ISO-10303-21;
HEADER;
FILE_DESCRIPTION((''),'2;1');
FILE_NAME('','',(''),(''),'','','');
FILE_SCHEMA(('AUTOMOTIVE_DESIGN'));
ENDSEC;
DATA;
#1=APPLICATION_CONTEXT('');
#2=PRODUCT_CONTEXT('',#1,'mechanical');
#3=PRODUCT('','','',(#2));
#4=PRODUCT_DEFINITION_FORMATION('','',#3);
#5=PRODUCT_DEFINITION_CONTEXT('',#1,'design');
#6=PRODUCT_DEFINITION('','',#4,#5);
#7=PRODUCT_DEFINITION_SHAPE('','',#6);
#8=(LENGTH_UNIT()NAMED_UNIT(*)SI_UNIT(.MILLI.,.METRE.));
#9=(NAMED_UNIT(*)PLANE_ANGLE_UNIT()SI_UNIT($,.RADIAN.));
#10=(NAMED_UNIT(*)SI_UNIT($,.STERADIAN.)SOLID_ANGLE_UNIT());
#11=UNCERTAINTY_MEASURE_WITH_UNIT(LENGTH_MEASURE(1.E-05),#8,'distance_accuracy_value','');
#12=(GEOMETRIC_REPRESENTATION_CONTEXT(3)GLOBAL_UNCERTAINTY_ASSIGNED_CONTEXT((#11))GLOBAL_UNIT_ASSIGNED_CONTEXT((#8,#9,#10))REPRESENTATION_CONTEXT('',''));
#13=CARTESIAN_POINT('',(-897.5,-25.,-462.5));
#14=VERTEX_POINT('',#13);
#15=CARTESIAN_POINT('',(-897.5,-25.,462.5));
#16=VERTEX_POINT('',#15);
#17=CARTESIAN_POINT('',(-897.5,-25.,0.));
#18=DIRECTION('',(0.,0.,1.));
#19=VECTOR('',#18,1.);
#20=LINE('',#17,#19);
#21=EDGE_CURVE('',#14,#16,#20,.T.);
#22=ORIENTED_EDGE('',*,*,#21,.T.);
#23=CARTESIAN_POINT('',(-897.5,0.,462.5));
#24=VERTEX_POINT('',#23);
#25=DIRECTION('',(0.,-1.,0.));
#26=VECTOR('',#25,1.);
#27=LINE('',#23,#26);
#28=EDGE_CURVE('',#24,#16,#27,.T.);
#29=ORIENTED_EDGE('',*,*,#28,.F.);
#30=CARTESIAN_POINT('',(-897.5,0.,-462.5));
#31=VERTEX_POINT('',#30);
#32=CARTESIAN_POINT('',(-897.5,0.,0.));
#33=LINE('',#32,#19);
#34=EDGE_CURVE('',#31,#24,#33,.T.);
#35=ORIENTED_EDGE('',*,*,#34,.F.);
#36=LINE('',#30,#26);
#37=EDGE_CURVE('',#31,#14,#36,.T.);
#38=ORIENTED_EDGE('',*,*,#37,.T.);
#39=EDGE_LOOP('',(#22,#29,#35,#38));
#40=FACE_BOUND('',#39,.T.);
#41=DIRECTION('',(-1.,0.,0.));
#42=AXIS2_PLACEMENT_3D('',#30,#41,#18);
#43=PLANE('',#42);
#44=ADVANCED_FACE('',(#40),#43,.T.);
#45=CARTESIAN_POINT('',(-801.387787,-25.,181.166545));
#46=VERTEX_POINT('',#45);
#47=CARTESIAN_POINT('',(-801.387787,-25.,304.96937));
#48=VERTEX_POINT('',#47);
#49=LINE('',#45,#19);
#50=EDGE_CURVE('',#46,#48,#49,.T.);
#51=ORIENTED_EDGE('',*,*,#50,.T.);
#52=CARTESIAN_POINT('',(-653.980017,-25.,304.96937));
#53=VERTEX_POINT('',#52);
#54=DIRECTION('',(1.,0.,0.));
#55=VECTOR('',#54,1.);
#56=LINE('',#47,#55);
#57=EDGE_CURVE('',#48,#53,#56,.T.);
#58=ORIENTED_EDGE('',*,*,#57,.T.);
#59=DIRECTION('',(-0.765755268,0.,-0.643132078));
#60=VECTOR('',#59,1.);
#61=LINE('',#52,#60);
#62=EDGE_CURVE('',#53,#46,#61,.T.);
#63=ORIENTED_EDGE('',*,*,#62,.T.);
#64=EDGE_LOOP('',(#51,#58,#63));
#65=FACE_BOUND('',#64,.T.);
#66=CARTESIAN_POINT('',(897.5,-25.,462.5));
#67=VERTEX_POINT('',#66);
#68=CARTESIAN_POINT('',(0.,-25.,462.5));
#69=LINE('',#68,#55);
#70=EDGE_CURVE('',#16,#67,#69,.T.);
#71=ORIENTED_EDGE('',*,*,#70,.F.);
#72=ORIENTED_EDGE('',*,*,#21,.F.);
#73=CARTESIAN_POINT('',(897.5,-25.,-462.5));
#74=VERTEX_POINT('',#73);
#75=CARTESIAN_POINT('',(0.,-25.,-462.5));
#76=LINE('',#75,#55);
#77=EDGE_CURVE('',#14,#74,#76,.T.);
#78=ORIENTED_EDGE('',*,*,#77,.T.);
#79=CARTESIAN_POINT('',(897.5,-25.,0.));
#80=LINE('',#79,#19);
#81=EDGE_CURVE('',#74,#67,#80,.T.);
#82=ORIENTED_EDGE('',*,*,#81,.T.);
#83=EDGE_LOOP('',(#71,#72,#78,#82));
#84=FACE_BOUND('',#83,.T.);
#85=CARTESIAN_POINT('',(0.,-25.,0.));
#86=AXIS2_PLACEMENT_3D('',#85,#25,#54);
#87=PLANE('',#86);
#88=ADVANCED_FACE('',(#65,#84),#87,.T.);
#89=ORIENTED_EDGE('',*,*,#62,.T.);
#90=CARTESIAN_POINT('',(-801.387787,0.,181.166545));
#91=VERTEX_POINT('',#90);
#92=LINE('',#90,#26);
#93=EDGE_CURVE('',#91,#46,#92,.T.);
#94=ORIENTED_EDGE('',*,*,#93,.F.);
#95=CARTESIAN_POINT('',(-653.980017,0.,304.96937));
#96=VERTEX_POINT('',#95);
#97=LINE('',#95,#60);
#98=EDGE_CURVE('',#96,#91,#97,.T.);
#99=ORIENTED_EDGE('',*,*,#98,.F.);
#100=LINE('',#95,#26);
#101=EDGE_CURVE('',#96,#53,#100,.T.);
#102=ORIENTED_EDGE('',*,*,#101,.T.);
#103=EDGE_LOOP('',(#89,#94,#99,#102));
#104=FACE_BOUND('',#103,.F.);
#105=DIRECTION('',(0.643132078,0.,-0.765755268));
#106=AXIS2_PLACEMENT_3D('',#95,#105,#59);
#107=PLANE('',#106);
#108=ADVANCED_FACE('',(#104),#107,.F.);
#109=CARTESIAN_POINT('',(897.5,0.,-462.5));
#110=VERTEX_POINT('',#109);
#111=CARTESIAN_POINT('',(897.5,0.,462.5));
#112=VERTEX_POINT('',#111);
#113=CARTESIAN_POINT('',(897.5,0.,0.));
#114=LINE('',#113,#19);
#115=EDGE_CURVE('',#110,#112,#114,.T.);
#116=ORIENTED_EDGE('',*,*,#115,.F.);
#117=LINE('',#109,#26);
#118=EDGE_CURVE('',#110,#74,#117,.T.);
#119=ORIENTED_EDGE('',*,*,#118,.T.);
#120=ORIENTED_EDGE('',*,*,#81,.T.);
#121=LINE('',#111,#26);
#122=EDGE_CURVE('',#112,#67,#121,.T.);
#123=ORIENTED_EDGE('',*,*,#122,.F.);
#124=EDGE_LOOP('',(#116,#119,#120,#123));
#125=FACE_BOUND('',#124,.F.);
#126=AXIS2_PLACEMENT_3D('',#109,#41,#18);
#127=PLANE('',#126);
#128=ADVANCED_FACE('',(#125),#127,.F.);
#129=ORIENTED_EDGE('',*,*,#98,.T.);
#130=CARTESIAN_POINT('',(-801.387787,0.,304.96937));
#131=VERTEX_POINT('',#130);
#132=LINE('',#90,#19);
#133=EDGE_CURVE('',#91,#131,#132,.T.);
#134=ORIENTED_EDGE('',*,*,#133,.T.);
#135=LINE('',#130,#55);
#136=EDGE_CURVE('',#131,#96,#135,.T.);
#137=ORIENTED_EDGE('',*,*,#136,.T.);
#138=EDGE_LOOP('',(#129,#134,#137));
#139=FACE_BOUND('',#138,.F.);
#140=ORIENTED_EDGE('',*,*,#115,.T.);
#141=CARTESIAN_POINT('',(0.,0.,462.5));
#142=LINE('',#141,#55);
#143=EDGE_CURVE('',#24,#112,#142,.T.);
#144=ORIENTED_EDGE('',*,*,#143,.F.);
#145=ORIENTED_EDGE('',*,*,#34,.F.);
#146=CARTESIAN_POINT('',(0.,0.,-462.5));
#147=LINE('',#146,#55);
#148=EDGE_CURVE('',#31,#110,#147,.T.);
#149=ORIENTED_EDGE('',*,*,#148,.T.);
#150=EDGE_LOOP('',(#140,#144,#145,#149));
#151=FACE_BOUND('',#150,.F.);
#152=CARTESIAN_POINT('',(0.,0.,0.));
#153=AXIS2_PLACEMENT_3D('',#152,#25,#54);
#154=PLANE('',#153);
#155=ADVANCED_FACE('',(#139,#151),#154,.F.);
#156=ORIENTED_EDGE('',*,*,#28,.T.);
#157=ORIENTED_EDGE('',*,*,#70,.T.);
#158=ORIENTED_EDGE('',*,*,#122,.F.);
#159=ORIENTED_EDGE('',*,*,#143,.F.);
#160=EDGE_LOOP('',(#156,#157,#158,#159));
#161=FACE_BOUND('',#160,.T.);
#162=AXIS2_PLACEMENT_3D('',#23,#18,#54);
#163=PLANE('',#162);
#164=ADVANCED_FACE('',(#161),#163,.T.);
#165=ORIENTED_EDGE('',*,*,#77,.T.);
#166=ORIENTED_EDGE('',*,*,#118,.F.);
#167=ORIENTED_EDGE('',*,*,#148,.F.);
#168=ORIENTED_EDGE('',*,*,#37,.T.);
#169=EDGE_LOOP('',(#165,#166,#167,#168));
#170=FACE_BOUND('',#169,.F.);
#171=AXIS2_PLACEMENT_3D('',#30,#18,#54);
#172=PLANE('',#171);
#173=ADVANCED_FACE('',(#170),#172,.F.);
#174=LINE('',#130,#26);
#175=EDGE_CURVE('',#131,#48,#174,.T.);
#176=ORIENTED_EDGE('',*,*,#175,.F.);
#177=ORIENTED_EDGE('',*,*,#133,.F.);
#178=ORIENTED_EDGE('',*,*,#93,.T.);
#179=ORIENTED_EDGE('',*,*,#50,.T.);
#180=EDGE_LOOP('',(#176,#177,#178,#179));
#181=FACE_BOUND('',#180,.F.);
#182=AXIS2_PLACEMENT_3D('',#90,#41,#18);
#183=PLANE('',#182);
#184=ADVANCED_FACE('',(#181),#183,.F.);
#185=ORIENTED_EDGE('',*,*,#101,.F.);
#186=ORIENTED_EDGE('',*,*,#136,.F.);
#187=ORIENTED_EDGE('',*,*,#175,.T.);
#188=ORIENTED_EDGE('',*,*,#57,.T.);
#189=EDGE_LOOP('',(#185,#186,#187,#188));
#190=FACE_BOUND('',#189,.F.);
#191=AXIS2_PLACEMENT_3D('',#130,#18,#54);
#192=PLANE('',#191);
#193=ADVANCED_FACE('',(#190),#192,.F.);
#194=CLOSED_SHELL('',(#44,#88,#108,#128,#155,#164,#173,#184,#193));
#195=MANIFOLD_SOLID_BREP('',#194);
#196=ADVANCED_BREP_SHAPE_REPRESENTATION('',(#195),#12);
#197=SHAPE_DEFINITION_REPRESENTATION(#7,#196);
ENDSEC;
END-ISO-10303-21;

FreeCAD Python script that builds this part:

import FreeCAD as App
import Part
import Sketcher

doc = App.newDocument("Part")
body = doc.addObject("PartDesign::Body", "Body")

sketch1 = body.newObject("Sketcher::SketchObject", "Sketch")
sketch1.AttachmentSupport = (doc.getObject("XZ_Plane"), [""])
sketch1.MapMode = "FlatFace"
sketch1.addGeometry([
    Part.LineSegment(App.Vector(-898, 462, 0), App.Vector(-898, -462, 0)),
    Part.LineSegment(App.Vector(-898, -462, 0), App.Vector(898, -462, 0)),
    Part.LineSegment(App.Vector(898, -462, 0), App.Vector(898, 462, 0)),
    Part.LineSegment(App.Vector(898, 462, 0), App.Vector(-898, 462, 0)),
], False)
sketch1.addConstraint([
    Sketcher.Constraint("Coincident", 0, 2, 1, 1),
    Sketcher.Constraint("Coincident", 1, 2, 2, 1),
    Sketcher.Constraint("Coincident", 2, 2, 3, 1),
    Sketcher.Constraint("Coincident", 3, 2, 0, 1),
    Sketcher.Constraint("Vertical", 0),
    Sketcher.Constraint("Horizontal", 1),
    Sketcher.Constraint("Vertical", 2),
    Sketcher.Constraint("Horizontal", 3),
    Sketcher.Constraint("Symmetric", 0, 2, 2, 2, -1, 1),
    Sketcher.Constraint("DistanceX", 1, 1, 1, 2, 1795.0),
    Sketcher.Constraint("DistanceY", 0, 2, 0, 1, 925.0),
])
pad1 = body.newObject("PartDesign::Pad", "Pad")
pad1.Profile = sketch1
pad1.Length = 25

sketch2 = body.newObject("Sketcher::SketchObject", "Sketch001")
sketch2.AttachmentSupport = (doc.getObject("XZ_Plane"), [""])
sketch2.MapMode = "FlatFace"
sketch2.addGeometry([
    Part.LineSegment(App.Vector(-801, 305, 0), App.Vector(-654, 305, 0)),
    Part.LineSegment(App.Vector(-654, 305, 0), App.Vector(-801, 181, 0)),
    Part.LineSegment(App.Vector(-801, 181, 0), App.Vector(-801, 305, 0)),
], False)
sketch2.addConstraint([
    Sketcher.Constraint("Coincident", 0, 2, 1, 1),
    Sketcher.Constraint("Coincident", 1, 2, 2, 1),
    Sketcher.Constraint("Coincident", 2, 2, 0, 1),
    Sketcher.Constraint("Horizontal", 0),
    Sketcher.Constraint("Vertical", 2),
    Sketcher.Constraint("DistanceX", 0, 1, 0, 2, 147.40777),
    Sketcher.Constraint("DistanceY", 2, 1, 2, 2, 123.802825),
    Sketcher.Constraint("DistanceY", -1, 1, 0, 2, 304.96937),
    Sketcher.Constraint("DistanceX", 0, 2, -1, 1, 653.980017),
])
pocket1 = body.newObject("PartDesign::Pocket", "Pocket")
pocket1.Profile = sketch2
pocket1.Type = "ThroughAll"
pocket1.Reversed = True

doc.recompute()
